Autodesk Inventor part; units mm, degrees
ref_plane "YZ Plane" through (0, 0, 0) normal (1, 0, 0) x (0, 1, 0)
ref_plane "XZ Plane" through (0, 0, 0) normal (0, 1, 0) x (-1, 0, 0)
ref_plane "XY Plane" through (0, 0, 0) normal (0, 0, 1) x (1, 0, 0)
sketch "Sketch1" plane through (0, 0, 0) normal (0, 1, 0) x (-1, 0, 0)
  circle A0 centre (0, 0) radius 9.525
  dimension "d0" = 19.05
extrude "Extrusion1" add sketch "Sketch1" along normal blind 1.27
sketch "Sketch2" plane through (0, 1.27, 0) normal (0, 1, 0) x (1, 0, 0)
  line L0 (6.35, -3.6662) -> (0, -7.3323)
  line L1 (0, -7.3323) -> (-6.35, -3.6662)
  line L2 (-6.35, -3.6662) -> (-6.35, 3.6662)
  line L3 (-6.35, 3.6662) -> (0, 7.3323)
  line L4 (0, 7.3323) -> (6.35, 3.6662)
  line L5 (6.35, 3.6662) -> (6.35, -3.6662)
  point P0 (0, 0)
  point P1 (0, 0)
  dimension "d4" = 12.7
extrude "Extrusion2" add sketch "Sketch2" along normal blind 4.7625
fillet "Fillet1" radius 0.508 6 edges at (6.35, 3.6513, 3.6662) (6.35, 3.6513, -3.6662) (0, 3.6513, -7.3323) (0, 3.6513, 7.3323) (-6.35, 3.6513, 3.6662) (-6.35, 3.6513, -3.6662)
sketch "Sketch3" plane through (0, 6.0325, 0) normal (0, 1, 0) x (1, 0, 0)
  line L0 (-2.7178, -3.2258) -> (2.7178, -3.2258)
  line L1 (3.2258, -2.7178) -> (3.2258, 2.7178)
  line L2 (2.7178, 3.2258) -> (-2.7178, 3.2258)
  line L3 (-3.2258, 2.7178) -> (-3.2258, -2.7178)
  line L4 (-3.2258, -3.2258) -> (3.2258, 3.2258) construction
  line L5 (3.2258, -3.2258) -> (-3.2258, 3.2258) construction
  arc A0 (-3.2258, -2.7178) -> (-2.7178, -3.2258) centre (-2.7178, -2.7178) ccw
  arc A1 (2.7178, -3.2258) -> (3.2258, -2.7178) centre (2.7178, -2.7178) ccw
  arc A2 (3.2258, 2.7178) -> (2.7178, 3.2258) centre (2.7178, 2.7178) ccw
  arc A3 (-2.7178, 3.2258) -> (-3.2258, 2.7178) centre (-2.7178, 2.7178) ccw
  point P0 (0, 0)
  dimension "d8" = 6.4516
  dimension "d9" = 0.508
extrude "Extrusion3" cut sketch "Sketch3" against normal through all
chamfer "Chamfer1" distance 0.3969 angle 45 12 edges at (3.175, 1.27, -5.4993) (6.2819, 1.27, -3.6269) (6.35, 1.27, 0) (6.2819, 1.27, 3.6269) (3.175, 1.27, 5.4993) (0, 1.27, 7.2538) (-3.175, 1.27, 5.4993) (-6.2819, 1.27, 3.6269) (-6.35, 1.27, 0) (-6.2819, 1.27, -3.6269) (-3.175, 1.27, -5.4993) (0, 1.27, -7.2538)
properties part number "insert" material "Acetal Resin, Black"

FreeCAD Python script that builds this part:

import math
import FreeCAD as App
import Part
import Sketcher

V = App.Vector
Q = App.Units.Quantity


def edges_at(feature, points):
    """Names of the edges that pass closest to the given points."""
    edges = feature.Shape.Edges
    near = lambda p: min(range(len(edges)), key=lambda i: edges[i].distToShape(Part.Vertex(*p))[0])
    return sorted({f"Edge{near(p) + 1}" for p in points})


def add_polygon(sketch, points):
    """Adds a closed chain of lines whose ends are joined by coincident constraints."""
    first, n = sketch.GeometryCount, len(points)
    for a, b in zip(points, points[1:] + points[:1]):
        sketch.addGeometry(Part.LineSegment(App.Vector(*a, 0), App.Vector(*b, 0)), False)
    for i in range(n):
        sketch.addConstraint(Sketcher.Constraint("Coincident", first + i, 2, first + (i + 1) % n, 1))

doc = App.newDocument("Part")
body = doc.addObject("PartDesign::Body", "Body")

sketch1 = body.newObject("Sketcher::SketchObject", "Sketch")
sketch1.AttachmentSupport = (doc.getObject("XZ_Plane"), [""])
sketch1.MapMode = "FlatFace"
sketch1.addGeometry(Part.Circle(V(0, 0, 0), V(0, 0, 1), 9.525), False)
sketch1.addConstraint(Sketcher.Constraint("Coincident", 0, 3, -1, 1))
sketch1.addConstraint(Sketcher.Constraint("Diameter", 0, Q("0.75 in")))
pad1 = body.newObject("PartDesign::Pad", "Pad")
pad1.Profile = sketch1
pad1.Length = Q("0.05 in")
pad1.Reversed = True

sketch2 = body.newObject("Sketcher::SketchObject", "Sketch001")
sketch2.AttachmentSupport = (doc.getObject("XZ_Plane"), [""])
sketch2.MapMode = "FlatFace"
sketch2.AttachmentOffset = App.Placement(V(0, 0, -0.05 * 25.4), App.Rotation())
add_polygon(sketch2, [(0, 7.3323), (6.35, 3.6662), (6.35, -3.6662), (0, -7.3323), (-6.35, -3.6662), (-6.35, 3.6662)])
sketch2.addConstraint(Sketcher.Constraint("Vertical", 1))
sketch2.addConstraint(Sketcher.Constraint("Vertical", 4))
sketch2.addConstraint(Sketcher.Constraint("Symmetric", 0, 2, 3, 2, -1, 1))
sketch2.addConstraint(Sketcher.Constraint("Symmetric", 2, 2, 5, 2, -1, 1))
sketch2.addConstraint(Sketcher.Constraint("PointOnObject", 2, 2, -2))
sketch2.addConstraint(Sketcher.Constraint("Parallel", 2, 5))
sketch2.addConstraint(Sketcher.Constraint("Horizontal", 1, 2, 3, 2))
sketch2.addConstraint(Sketcher.Constraint("DistanceX", 3, 2, 1, 2, Q("0.5 in")))
sketch2.addConstraint(Sketcher.Constraint("Angle", 0, Q("-29.9995 deg")))
sketch2.addConstraint(Sketcher.Constraint("DistanceY", 2, 2, 0, 2, Q("0.433 in")))
pad2 = body.newObject("PartDesign::Pad", "Pad001")
pad2.Profile = sketch2
pad2.Length = Q("0.1875 in")
pad2.Reversed = True
doc.recompute()

fillet = body.newObject("PartDesign::Fillet", "Fillet")
fillet.Base = (pad2, edges_at(pad2, [
    (6.35, 3.651, 3.666),
    (6.35, 3.651, -3.666),
    (0, 3.651, -7.332),
    (0, 3.651, 7.332),
    (-6.35, 3.651, 3.666),
    (-6.35, 3.651, -3.666),
]))
fillet.Radius = Q("0.02 in")

sketch3 = body.newObject("Sketcher::SketchObject", "Sketch002")
sketch3.AttachmentSupport = (doc.getObject("XZ_Plane"), [""])
sketch3.MapMode = "FlatFace"
sketch3.AttachmentOffset = App.Placement(V(0, 0, -0.2375 * 25.4), App.Rotation())
sketch3.addGeometry(Part.ArcOfCircle(Part.Circle(V(-2.7178, 2.7178, 0), V(0, 0, 1), 0.508), math.radians(90), math.radians(180)), False)
sketch3.addGeometry(Part.LineSegment(V(-2.7178, 3.2258, 0), V(2.7178, 3.2258, 0)), False)
sketch3.addGeometry(Part.ArcOfCircle(Part.Circle(V(2.7178, 2.7178, 0), V(0, 0, 1), 0.508), math.radians(0), math.radians(90)), False)
sketch3.addGeometry(Part.LineSegment(V(3.2258, 2.7178, 0), V(3.2258, -2.7178, 0)), False)
sketch3.addGeometry(Part.ArcOfCircle(Part.Circle(V(2.7178, -2.7178, 0), V(0, 0, 1), 0.508), math.radians(-90), math.radians(0)), False)
sketch3.addGeometry(Part.LineSegment(V(2.7178, -3.2258, 0), V(-2.7178, -3.2258, 0)), False)
sketch3.addGeometry(Part.ArcOfCircle(Part.Circle(V(-2.7178, -2.7178, 0), V(0, 0, 1), 0.508), math.radians(180), math.radians(270)), False)
sketch3.addGeometry(Part.LineSegment(V(-3.2258, -2.7178, 0), V(-3.2258, 2.7178, 0)), False)
sketch3.addConstraint(Sketcher.Constraint("Tangent", 0, 1, 1, 1))
sketch3.addConstraint(Sketcher.Constraint("Tangent", 1, 2, 2, 2))
sketch3.addConstraint(Sketcher.Constraint("Tangent", 2, 1, 3, 1))
sketch3.addConstraint(Sketcher.Constraint("Tangent", 3, 2, 4, 2))
sketch3.addConstraint(Sketcher.Constraint("Tangent", 4, 1, 5, 1))
sketch3.addConstraint(Sketcher.Constraint("Tangent", 5, 2, 6, 2))
sketch3.addConstraint(Sketcher.Constraint("Tangent", 6, 1, 7, 1))
sketch3.addConstraint(Sketcher.Constraint("Tangent", 7, 2, 0, 2))
sketch3.addConstraint(Sketcher.Constraint("Horizontal", 1))
sketch3.addConstraint(Sketcher.Constraint("Vertical", 3))
sketch3.addConstraint(Sketcher.Constraint("Horizontal", 5))
sketch3.addConstraint(Sketcher.Constraint("Vertical", 7))
sketch3.addConstraint(Sketcher.Constraint("Equal", 0, 2))
sketch3.addConstraint(Sketcher.Constraint("Equal", 2, 4))
sketch3.addConstraint(Sketcher.Constraint("Equal", 4, 6))
sketch3.addConstraint(Sketcher.Constraint("Symmetric", 0, 3, 4, 3, -1, 1))
sketch3.addConstraint(Sketcher.Constraint("Equal", 5, 3))
sketch3.addConstraint(Sketcher.Constraint("Radius", 0, Q("0.02 in")))
sketch3.addConstraint(Sketcher.Constraint("DistanceX", 1, 1, 1, 2, Q("0.214 in")))
pocket1 = body.newObject("PartDesign::Pocket", "Pocket")
pocket1.Profile = sketch3
pocket1.Type = "ThroughAll"
pocket1.Reversed = True
doc.recompute()

chamfer = body.newObject("PartDesign::Chamfer", "Chamfer")
chamfer.Base = (pocket1, edges_at(pocket1, [
    (3.175, 1.27, -5.499),
    (6.282, 1.27, -3.627),
    (6.35, 1.27, 0),
    (6.282, 1.27, 3.627),
    (3.175, 1.27, 5.499),
    (0, 1.27, 7.254),
    (-3.175, 1.27, 5.499),
    (-6.282, 1.27, 3.627),
    (-6.35, 1.27, 0),
    (-6.282, 1.27, -3.627),
    (-3.175, 1.27, -5.499),
    (0, 1.27, -7.254),
]))
chamfer.Size = Q("0.015626 in")

doc.recompute()
